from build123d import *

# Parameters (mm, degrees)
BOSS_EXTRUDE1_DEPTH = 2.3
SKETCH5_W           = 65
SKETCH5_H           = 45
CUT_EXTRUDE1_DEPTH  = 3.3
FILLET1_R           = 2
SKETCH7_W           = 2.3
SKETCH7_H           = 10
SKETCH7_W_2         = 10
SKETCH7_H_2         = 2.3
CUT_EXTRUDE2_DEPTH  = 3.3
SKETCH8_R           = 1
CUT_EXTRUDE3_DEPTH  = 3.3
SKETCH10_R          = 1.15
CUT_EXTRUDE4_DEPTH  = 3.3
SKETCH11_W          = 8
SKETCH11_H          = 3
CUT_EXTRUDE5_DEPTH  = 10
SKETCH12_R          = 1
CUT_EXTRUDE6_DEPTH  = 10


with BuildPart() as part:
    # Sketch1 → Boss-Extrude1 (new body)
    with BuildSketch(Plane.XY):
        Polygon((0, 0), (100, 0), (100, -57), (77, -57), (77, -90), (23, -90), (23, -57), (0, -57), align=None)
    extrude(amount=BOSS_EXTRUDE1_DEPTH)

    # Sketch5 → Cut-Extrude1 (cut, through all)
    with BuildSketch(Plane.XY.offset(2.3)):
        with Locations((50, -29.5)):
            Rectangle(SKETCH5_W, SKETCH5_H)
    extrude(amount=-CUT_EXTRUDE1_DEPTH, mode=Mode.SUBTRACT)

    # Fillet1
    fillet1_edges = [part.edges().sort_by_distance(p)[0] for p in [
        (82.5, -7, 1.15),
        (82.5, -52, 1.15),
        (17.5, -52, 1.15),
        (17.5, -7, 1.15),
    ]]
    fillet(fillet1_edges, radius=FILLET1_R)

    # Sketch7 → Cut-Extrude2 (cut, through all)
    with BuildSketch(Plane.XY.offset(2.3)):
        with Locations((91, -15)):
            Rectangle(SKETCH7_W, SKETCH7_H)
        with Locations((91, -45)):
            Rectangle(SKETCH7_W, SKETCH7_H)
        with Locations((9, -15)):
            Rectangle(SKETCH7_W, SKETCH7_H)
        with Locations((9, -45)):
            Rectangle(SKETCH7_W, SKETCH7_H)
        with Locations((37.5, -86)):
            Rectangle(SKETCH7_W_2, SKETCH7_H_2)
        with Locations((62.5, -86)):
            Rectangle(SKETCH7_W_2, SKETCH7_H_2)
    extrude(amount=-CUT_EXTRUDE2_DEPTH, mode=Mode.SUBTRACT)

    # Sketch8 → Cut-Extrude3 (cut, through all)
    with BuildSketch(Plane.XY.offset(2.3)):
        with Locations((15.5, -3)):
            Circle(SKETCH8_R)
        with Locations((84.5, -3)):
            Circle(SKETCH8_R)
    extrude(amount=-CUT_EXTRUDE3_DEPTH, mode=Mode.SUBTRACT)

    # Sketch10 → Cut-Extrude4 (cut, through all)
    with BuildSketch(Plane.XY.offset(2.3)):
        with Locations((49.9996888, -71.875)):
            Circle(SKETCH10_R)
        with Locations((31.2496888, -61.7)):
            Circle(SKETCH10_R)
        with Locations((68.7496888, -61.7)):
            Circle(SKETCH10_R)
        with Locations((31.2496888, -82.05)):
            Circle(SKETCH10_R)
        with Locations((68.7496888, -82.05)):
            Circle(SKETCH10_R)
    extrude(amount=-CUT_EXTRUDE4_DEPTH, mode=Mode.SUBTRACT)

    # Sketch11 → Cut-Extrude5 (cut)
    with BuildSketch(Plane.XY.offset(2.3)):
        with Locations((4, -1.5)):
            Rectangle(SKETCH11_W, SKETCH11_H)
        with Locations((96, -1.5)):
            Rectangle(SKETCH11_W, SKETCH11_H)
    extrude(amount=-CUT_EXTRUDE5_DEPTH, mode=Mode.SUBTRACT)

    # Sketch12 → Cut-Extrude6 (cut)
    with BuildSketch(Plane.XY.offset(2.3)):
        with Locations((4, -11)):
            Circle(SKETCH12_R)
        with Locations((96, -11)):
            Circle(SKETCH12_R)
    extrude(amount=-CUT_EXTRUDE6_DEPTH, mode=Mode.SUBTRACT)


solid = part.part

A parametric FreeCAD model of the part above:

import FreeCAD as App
import Part
import Sketcher

V = App.Vector


def edges_at(feature, points):
    """Names of the edges that pass closest to the given points."""
    edges = feature.Shape.Edges
    near = lambda p: min(range(len(edges)), key=lambda i: edges[i].distToShape(Part.Vertex(*p))[0])
    return sorted({f"Edge{near(p) + 1}" for p in points})

doc = App.newDocument("Part")
params = doc.addObject("Spreadsheet::Sheet", "Params")
for row, (alias, value) in enumerate([
    ("sketch1_width", "100 mm"),
    ("sketch1_width2", "23 mm"),
    ("sketch1_height", "57 mm"),
    ("sketch1_height2", "33 mm"),
    ("pad1_length", "2.3 mm"),
    ("sketch2_width", "65 mm"),
    ("sketch2_height", "45 mm"),
    ("fillet_radius", "2 mm"),
    ("sketch3_width", "10 mm"),
    ("sketch3_width2", "2.3 mm"),
    ("sketch4_diameter", "2 mm"),
    ("sketch5_diameter", "2.3 mm"),
    ("sketch6_width", "8 mm"),
    ("sketch6_height", "3 mm"),
    ("pocket5_length", "10 mm"),
    ("sketch7_diameter", "2 mm"),
    ("pocket6_length", "10 mm"),
], start=1):
    params.set(f"A{row}", alias)
    params.set(f"B{row}", "=" + value)
    params.setAlias(f"B{row}", alias)

body = doc.addObject("PartDesign::Body", "Body")

# Sketch on XY plane
sketch1 = body.newObject("Sketcher::SketchObject", "Sketch")
sketch1.AttachmentSupport = (doc.getObject("XY_Plane"), [""])
sketch1.MapMode = "FlatFace"
sketch1.addGeometry([
    Part.LineSegment(V(100, 0, 0), V(0, 0, 0)),  # 0
    Part.LineSegment(V(0, 0, 0), V(0, -57, 0)),  # 1
    Part.LineSegment(V(0, -57, 0), V(23, -57, 0)),  # 2
    Part.LineSegment(V(23, -57, 0), V(23, -90, 0)),  # 3
    Part.LineSegment(V(23, -90, 0), V(77, -90, 0)),  # 4
    Part.LineSegment(V(77, -90, 0), V(77, -57, 0)),  # 5
    Part.LineSegment(V(77, -57, 0), V(100, -57, 0)),  # 6
    Part.LineSegment(V(100, -57, 0), V(100, 0, 0)),  # 7
], False)
sketch1.addConstraint([
    Sketcher.Constraint("Coincident", 0, 2, 1, 1),
    Sketcher.Constraint("Coincident", 1, 2, 2, 1),
    Sketcher.Constraint("Coincident", 2, 2, 3, 1),
    Sketcher.Constraint("Coincident", 3, 2, 4, 1),
    Sketcher.Constraint("Coincident", 4, 2, 5, 1),
    Sketcher.Constraint("Coincident", 5, 2, 6, 1),
    Sketcher.Constraint("Coincident", 6, 2, 7, 1),
    Sketcher.Constraint("Coincident", 7, 2, 0, 1),
    Sketcher.Constraint("Horizontal", 0),
    Sketcher.Constraint("Vertical", 1),
    Sketcher.Constraint("Horizontal", 2),
    Sketcher.Constraint("Vertical", 3),
    Sketcher.Constraint("Horizontal", 4),
    Sketcher.Constraint("Vertical", 5),
    Sketcher.Constraint("Horizontal", 6),
    Sketcher.Constraint("Vertical", 7),
    Sketcher.Constraint("Coincident", 0, 2, -1, 1),
    Sketcher.Constraint("Horizontal", 2, 2, 5, 2),
    Sketcher.Constraint("Equal", 2, 6),
    Sketcher.Constraint("DistanceX", 0, 2, 0, 1, 100.0),
    Sketcher.Constraint("DistanceX", 2, 1, 2, 2, 23.0),
    Sketcher.Constraint("DistanceY", 1, 2, 1, 1, 57.0),
    Sketcher.Constraint("DistanceY", 3, 2, 3, 1, 33.0),
])
sketch1.setExpression("Constraints[19]", "Params.sketch1_width")
sketch1.setExpression("Constraints[20]", "Params.sketch1_width2")
sketch1.setExpression("Constraints[21]", "Params.sketch1_height")
sketch1.setExpression("Constraints[22]", "Params.sketch1_height2")
pad1 = body.newObject("PartDesign::Pad", "Pad")
pad1.Profile = sketch1
pad1.setExpression("Length", "Params.pad1_length")

# Sketch on XY plane
sketch2 = body.newObject("Sketcher::SketchObject", "Sketch001")
sketch2.AttachmentSupport = (doc.getObject("XY_Plane"), [""])
sketch2.MapMode = "FlatFace"
sketch2.AttachmentOffset = App.Placement(V(0, 0, 2.3), App.Rotation())
sketch2.addGeometry([
    Part.LineSegment(V(17.5, -7, 0), V(17.5, -52, 0)),
    Part.LineSegment(V(17.5, -52, 0), V(82.5, -52, 0)),
    Part.LineSegment(V(82.5, -52, 0), V(82.5, -7, 0)),
    Part.LineSegment(V(82.5, -7, 0), V(17.5, -7, 0)),
], False)
sketch2.addConstraint([
    Sketcher.Constraint("Coincident", 0, 2, 1, 1),
    Sketcher.Constraint("Coincident", 1, 2, 2, 1),
    Sketcher.Constraint("Coincident", 2, 2, 3, 1),
    Sketcher.Constraint("Coincident", 3, 2, 0, 1),
    Sketcher.Constraint("Vertical", 0),
    Sketcher.Constraint("Horizontal", 1),
    Sketcher.Constraint("Vertical", 2),
    Sketcher.Constraint("Horizontal", 3),
    Sketcher.Constraint("DistanceX", 1, 1, 1, 2, 65.0),
    Sketcher.Constraint("DistanceY", 0, 2, 0, 1, 45.0),
    Sketcher.Constraint("DistanceY", 0, 2, -1, 1, 52.0),
    Sketcher.Constraint("DistanceX", -1, 1, 0, 2, 17.5),
])
sketch2.setExpression("Constraints[8]", "Params.sketch2_width")
sketch2.setExpression("Constraints[9]", "Params.sketch2_height")
pocket1 = body.newObject("PartDesign::Pocket", "Pocket")
pocket1.Profile = sketch2
pocket1.Type = "ThroughAll"
doc.recompute()

fillet = body.newObject("PartDesign::Fillet", "Fillet")
fillet.Base = (pocket1, edges_at(pocket1, [
    (82.5, -7, 1.15),
    (82.5, -52, 1.15),
    (17.5, -52, 1.15),
    (17.5, -7, 1.15),
]))
fillet.setExpression("Radius", "Params.fillet_radius")

# Sketch on XY plane
sketch3 = body.newObject("Sketcher::SketchObject", "Sketch002")
sketch3.AttachmentSupport = (doc.getObject("XY_Plane"), [""])
sketch3.MapMode = "FlatFace"
sketch3.AttachmentOffset = App.Placement(V(0, 0, 2.3), App.Rotation())
sketch3.addGeometry([
    Part.LineSegment(V(89.85, -10, 0), V(89.85, -20, 0)),  # 0
    Part.LineSegment(V(89.85, -20, 0), V(92.15, -20, 0)),  # 1
    Part.LineSegment(V(92.15, -20, 0), V(92.15, -10, 0)),  # 2
    Part.LineSegment(V(92.15, -10, 0), V(89.85, -10, 0)),  # 3
    Part.LineSegment(V(89.85, -40, 0), V(89.85, -50, 0)),  # 4
    Part.LineSegment(V(89.85, -50, 0), V(92.15, -50, 0)),  # 5
    Part.LineSegment(V(92.15, -50, 0), V(92.15, -40, 0)),  # 6
    Part.LineSegment(V(92.15, -40, 0), V(89.85, -40, 0)),  # 7
    Part.LineSegment(V(7.85, -10, 0), V(7.85, -20, 0)),  # 8
    Part.LineSegment(V(7.85, -20, 0), V(10.15, -20, 0)),  # 9
    Part.LineSegment(V(10.15, -20, 0), V(10.15, -10, 0)),  # 10
    Part.LineSegment(V(10.15, -10, 0), V(7.85, -10, 0)),  # 11
    Part.LineSegment(V(7.85, -40, 0), V(7.85, -50, 0)),  # 12
    Part.LineSegment(V(7.85, -50, 0), V(10.15, -50, 0)),  # 13
    Part.LineSegment(V(10.15, -50, 0), V(10.15, -40, 0)),  # 14
    Part.LineSegment(V(10.15, -40, 0), V(7.85, -40, 0)),  # 15
    Part.LineSegment(V(32.5, -84.85, 0), V(32.5, -87.15, 0)),  # 16
    Part.LineSegment(V(32.5, -87.15, 0), V(42.5, -87.15, 0)),  # 17
    Part.LineSegment(V(42.5, -87.15, 0), V(42.5, -84.85, 0)),  # 18
    Part.LineSegment(V(42.5, -84.85, 0), V(32.5, -84.85, 0)),  # 19
    Part.LineSegment(V(57.5, -84.85, 0), V(57.5, -87.15, 0)),  # 20
    Part.LineSegment(V(57.5, -87.15, 0), V(67.5, -87.15, 0)),  # 21
    Part.LineSegment(V(67.5, -87.15, 0), V(67.5, -84.85, 0)),  # 22
    Part.LineSegment(V(67.5, -84.85, 0), V(57.5, -84.85, 0)),  # 23
], False)
sketch3.addConstraint([
    Sketcher.Constraint("Coincident", 0, 2, 1, 1),
    Sketcher.Constraint("Coincident", 1, 2, 2, 1),
    Sketcher.Constraint("Coincident", 2, 2, 3, 1),
    Sketcher.Constraint("Coincident", 3, 2, 0, 1),
    Sketcher.Constraint("Coincident", 4, 2, 5, 1),
    Sketcher.Constraint("Coincident", 5, 2, 6, 1),
    Sketcher.Constraint("Coincident", 6, 2, 7, 1),
    Sketcher.Constraint("Coincident", 7, 2, 4, 1),
    Sketcher.Constraint("Coincident", 8, 2, 9, 1),
    Sketcher.Constraint("Coincident", 9, 2, 10, 1),
    Sketcher.Constraint("Coincident", 10, 2, 11, 1),
    Sketcher.Constraint("Coincident", 11, 2, 8, 1),
    Sketcher.Constraint("Coincident", 12, 2, 13, 1),
    Sketcher.Constraint("Coincident", 13, 2, 14, 1),
    Sketcher.Constraint("Coincident", 14, 2, 15, 1),
    Sketcher.Constraint("Coincident", 15, 2, 12, 1),
    Sketcher.Constraint("Coincident", 16, 2, 17, 1),
    Sketcher.Constraint("Coincident", 17, 2, 18, 1),
    Sketcher.Constraint("Coincident", 18, 2, 19, 1),
    Sketcher.Constraint("Coincident", 19, 2, 16, 1),
    Sketcher.Constraint("Coincident", 20, 2, 21, 1),
    Sketcher.Constraint("Coincident", 21, 2, 22, 1),
    Sketcher.Constraint("Coincident", 22, 2, 23, 1),
    Sketcher.Constraint("Coincident", 23, 2, 20, 1),
    Sketcher.Constraint("Vertical", 0),
    Sketcher.Constraint("Horizontal", 1),
    Sketcher.Constraint("Vertical", 2),
    Sketcher.Constraint("Horizontal", 3),
    Sketcher.Constraint("Vertical", 4),
    Sketcher.Constraint("Horizontal", 5),
    Sketcher.Constraint("Vertical", 6),
    Sketcher.Constraint("Horizontal", 7),
    Sketcher.Constraint("Vertical", 8),
    Sketcher.Constraint("Horizontal", 9),
    Sketcher.Constraint("Vertical", 10),
    Sketcher.Constraint("Horizontal", 11),
    Sketcher.Constraint("Vertical", 12),
    Sketcher.Constraint("Horizontal", 13),
    Sketcher.Constraint("Vertical", 14),
    Sketcher.Constraint("Horizontal", 15),
    Sketcher.Constraint("Vertical", 16),
    Sketcher.Constraint("Horizontal", 17),
    Sketcher.Constraint("Vertical", 18),
    Sketcher.Constraint("Horizontal", 19),
    Sketcher.Constraint("Vertical", 20),
    Sketcher.Constraint("Horizontal", 21),
    Sketcher.Constraint("Vertical", 22),
    Sketcher.Constraint("Horizontal", 23),
    Sketcher.Constraint("Horizontal", 1, 2, 8, 2),
    Sketcher.Constraint("Horizontal", 3, 2, 10, 2),
    Sketcher.Constraint("Horizontal", 5, 2, 12, 2),
    Sketcher.Constraint("Horizontal", 7, 2, 14, 2),
    Sketcher.Constraint("Horizontal", 17, 2, 20, 2),
    Sketcher.Constraint("Horizontal", 19, 2, 22, 2),
    Sketcher.Constraint("Vertical", 3, 2, 4, 2),
    Sketcher.Constraint("Vertical", 2, 2, 5, 2),
    Sketcher.Constraint("Vertical", 11, 2, 12, 2),
    Sketcher.Constraint("Vertical", 10, 2, 13, 2),
    Sketcher.Constraint("Equal", 7, 9),
    Sketcher.Constraint("Equal", 19, 21),
    Sketcher.Constraint("Equal", 23, 0),
    Sketcher.Constraint("Equal", 2, 4),
    Sketcher.Constraint("Equal", 15, 16),
    Sketcher.Constraint("DistanceX", 17, 1, 17, 2, 10.0),
    Sketcher.Constraint("DistanceX", 1, 1, 1, 2, 2.3),
    Sketcher.Constraint("DistanceY", 0, 2, -1, 1, 20.0),
    Sketcher.Constraint("DistanceY", 4, 2, -1, 1, 50.0),
    Sketcher.Constraint("DistanceX", 8, 2, 0, 2, 82.0),
    Sketcher.Constraint("DistanceX", 17, 2, 20, 2, 15.0),
    Sketcher.Constraint("DistanceX", -1, 1, 16, 2, 32.5),
    Sketcher.Constraint("DistanceX", -1, 1, 0, 2, 89.85),
    Sketcher.Constraint("DistanceY", 16, 2, -1, 1, 87.15),
])
sketch3.setExpression("Constraints[63]", "Params.sketch3_width")
sketch3.setExpression("Constraints[64]", "Params.sketch3_width2")
pocket2 = body.newObject("PartDesign::Pocket", "Pocket001")
pocket2.Profile = sketch3
pocket2.Type = "ThroughAll"

# Sketch on XY plane
sketch4 = body.newObject("Sketcher::SketchObject", "Sketch003")
sketch4.AttachmentSupport = (doc.getObject("XY_Plane"), [""])
sketch4.MapMode = "FlatFace"
sketch4.AttachmentOffset = App.Placement(V(0, 0, 2.3), App.Rotation())
sketch4.addGeometry([
    Part.Circle(V(15.5, -3, 0), V(0, 0, 1), 1),
    Part.Circle(V(84.5, -3, 0), V(0, 0, 1), 1),
], False)
sketch4.addConstraint([
    Sketcher.Constraint("Equal", 0, 1),
    Sketcher.Constraint("Horizontal", 0, 3, 1, 3),
    Sketcher.Constraint("Diameter", 0, 2.0),
    Sketcher.Constraint("DistanceY", 0, 3, -1, 1, 3.0),
    Sketcher.Constraint("DistanceX", 0, 3, 1, 3, 69.0),
    Sketcher.Constraint("DistanceX", -1, 1, 0, 3, 15.5),
])
sketch4.setExpression("Constraints[2]", "Params.sketch4_diameter")
pocket3 = body.newObject("PartDesign::Pocket", "Pocket002")
pocket3.Profile = sketch4
pocket3.Type = "ThroughAll"

# Sketch on XY plane
sketch5 = body.newObject("Sketcher::SketchObject", "Sketch004")
sketch5.AttachmentSupport = (doc.getObject("XY_Plane"), [""])
sketch5.MapMode = "FlatFace"
sketch5.AttachmentOffset = App.Placement(V(0, 0, 2.3), App.Rotation())
sketch5.addGeometry([
    Part.Circle(V(49.999689, -71.875, 0), V(0, 0, 1), 1.15),  # 0
    Part.Circle(V(31.249689, -61.7, 0), V(0, 0, 1), 1.15),  # 1
    Part.Circle(V(68.749689, -61.7, 0), V(0, 0, 1), 1.15),  # 2
    Part.Circle(V(31.249689, -82.05, 0), V(0, 0, 1), 1.15),  # 3
    Part.Circle(V(68.749689, -82.05, 0), V(0, 0, 1), 1.15),  # 4
], False)
sketch5.addConstraint([
    Sketcher.Constraint("Equal", 0, 1),
    Sketcher.Constraint("Equal", 1, 2),
    Sketcher.Constraint("Equal", 2, 3),
    Sketcher.Constraint("Equal", 3, 4),
    Sketcher.Constraint("Horizontal", 1, 3, 2, 3),
    Sketcher.Constraint("Horizontal", 3, 3, 4, 3),
    Sketcher.Constraint("Vertical", 1, 3, 3, 3),
    Sketcher.Constraint("Vertical", 2, 3, 4, 3),
    Sketcher.Constraint("Diameter", 0, 2.3),
    Sketcher.Constraint("DistanceY", 1, 3, -1, 1, 61.7),
    Sketcher.Constraint("DistanceX", 1, 3, 2, 3, 37.5),
    Sketcher.Constraint("DistanceY", 3, 3, -1, 1, 82.05),
    Sketcher.Constraint("DistanceX", 1, 3, 0, 3, 18.75),
    Sketcher.Constraint("DistanceY", 0, 3, -1, 1, 71.875),
    Sketcher.Constraint("DistanceX", -1, 1, 0, 3, 49.999689),
])
sketch5.setExpression("Constraints[8]", "Params.sketch5_diameter")
pocket4 = body.newObject("PartDesign::Pocket", "Pocket003")
pocket4.Profile = sketch5
pocket4.Type = "ThroughAll"

# Sketch on XY plane
sketch6 = body.newObject("Sketcher::SketchObject", "Sketch005")
sketch6.AttachmentSupport = (doc.getObject("XY_Plane"), [""])
sketch6.MapMode = "FlatFace"
sketch6.AttachmentOffset = App.Placement(V(0, 0, 2.3), App.Rotation())
sketch6.addGeometry([
    Part.LineSegment(V(0, 0, 0), V(0, -3, 0)),  # 0
    Part.LineSegment(V(0, -3, 0), V(8, -3, 0)),  # 1
    Part.LineSegment(V(8, -3, 0), V(8, 0, 0)),  # 2
    Part.LineSegment(V(8, 0, 0), V(0, 0, 0)),  # 3
    Part.LineSegment(V(92, 0, 0), V(92, -3, 0)),  # 4
    Part.LineSegment(V(92, -3, 0), V(100, -3, 0)),  # 5
    Part.LineSegment(V(100, -3, 0), V(100, 0, 0)),  # 6
    Part.LineSegment(V(100, 0, 0), V(92, 0, 0)),  # 7
], False)
sketch6.addConstraint([
    Sketcher.Constraint("Coincident", 0, 2, 1, 1),
    Sketcher.Constraint("Coincident", 1, 2, 2, 1),
    Sketcher.Constraint("Coincident", 2, 2, 3, 1),
    Sketcher.Constraint("Coincident", 3, 2, 0, 1),
    Sketcher.Constraint("Coincident", 4, 2, 5, 1),
    Sketcher.Constraint("Coincident", 5, 2, 6, 1),
    Sketcher.Constraint("Coincident", 6, 2, 7, 1),
    Sketcher.Constraint("Coincident", 7, 2, 4, 1),
    Sketcher.Constraint("Vertical", 0),
    Sketcher.Constraint("Horizontal", 1),
    Sketcher.Constraint("Vertical", 2),
    Sketcher.Constraint("Horizontal", 3),
    Sketcher.Constraint("Vertical", 4),
    Sketcher.Constraint("Horizontal", 5),
    Sketcher.Constraint("Vertical", 6),
    Sketcher.Constraint("Horizontal", 7),
    Sketcher.Constraint("Coincident", 3, 2, -1, 1),
    Sketcher.Constraint("PointOnObject", 6, 2, -1),
    Sketcher.Constraint("Horizontal", 1, 2, 4, 2),
    Sketcher.Constraint("Equal", 3, 5),
    Sketcher.Constraint("DistanceX", 1, 1, 1, 2, 8.0),
    Sketcher.Constraint("DistanceY", 0, 2, 0, 1, 3.0),
    Sketcher.Constraint("DistanceX", -1, 1, 4, 2, 92.0),
])
sketch6.setExpression("Constraints[20]", "Params.sketch6_width")
sketch6.setExpression("Constraints[21]", "Params.sketch6_height")
pocket5 = body.newObject("PartDesign::Pocket", "Pocket004")
pocket5.Profile = sketch6
pocket5.setExpression("Length", "Params.pocket5_length")

# Sketch on XY plane
sketch7 = body.newObject("Sketcher::SketchObject", "Sketch006")
sketch7.AttachmentSupport = (doc.getObject("XY_Plane"), [""])
sketch7.MapMode = "FlatFace"
sketch7.AttachmentOffset = App.Placement(V(0, 0, 2.3), App.Rotation())
sketch7.addGeometry([
    Part.Circle(V(4, -11, 0), V(0, 0, 1), 1),
    Part.Circle(V(96, -11, 0), V(0, 0, 1), 1),
], False)
sketch7.addConstraint([
    Sketcher.Constraint("Equal", 0, 1),
    Sketcher.Constraint("Horizontal", 0, 3, 1, 3),
    Sketcher.Constraint("Diameter", 0, 2.0),
    Sketcher.Constraint("DistanceX", -1, 1, 0, 3, 4.0),
    Sketcher.Constraint("DistanceY", 0, 3, -1, 1, 11.0),
    Sketcher.Constraint("DistanceX", -1, 1, 1, 3, 96.0),
])
sketch7.setExpression("Constraints[2]", "Params.sketch7_diameter")
pocket6 = body.newObject("PartDesign::Pocket", "Pocket005")
pocket6.Profile = sketch7
pocket6.setExpression("Length", "Params.pocket6_length")

doc.recompute()
